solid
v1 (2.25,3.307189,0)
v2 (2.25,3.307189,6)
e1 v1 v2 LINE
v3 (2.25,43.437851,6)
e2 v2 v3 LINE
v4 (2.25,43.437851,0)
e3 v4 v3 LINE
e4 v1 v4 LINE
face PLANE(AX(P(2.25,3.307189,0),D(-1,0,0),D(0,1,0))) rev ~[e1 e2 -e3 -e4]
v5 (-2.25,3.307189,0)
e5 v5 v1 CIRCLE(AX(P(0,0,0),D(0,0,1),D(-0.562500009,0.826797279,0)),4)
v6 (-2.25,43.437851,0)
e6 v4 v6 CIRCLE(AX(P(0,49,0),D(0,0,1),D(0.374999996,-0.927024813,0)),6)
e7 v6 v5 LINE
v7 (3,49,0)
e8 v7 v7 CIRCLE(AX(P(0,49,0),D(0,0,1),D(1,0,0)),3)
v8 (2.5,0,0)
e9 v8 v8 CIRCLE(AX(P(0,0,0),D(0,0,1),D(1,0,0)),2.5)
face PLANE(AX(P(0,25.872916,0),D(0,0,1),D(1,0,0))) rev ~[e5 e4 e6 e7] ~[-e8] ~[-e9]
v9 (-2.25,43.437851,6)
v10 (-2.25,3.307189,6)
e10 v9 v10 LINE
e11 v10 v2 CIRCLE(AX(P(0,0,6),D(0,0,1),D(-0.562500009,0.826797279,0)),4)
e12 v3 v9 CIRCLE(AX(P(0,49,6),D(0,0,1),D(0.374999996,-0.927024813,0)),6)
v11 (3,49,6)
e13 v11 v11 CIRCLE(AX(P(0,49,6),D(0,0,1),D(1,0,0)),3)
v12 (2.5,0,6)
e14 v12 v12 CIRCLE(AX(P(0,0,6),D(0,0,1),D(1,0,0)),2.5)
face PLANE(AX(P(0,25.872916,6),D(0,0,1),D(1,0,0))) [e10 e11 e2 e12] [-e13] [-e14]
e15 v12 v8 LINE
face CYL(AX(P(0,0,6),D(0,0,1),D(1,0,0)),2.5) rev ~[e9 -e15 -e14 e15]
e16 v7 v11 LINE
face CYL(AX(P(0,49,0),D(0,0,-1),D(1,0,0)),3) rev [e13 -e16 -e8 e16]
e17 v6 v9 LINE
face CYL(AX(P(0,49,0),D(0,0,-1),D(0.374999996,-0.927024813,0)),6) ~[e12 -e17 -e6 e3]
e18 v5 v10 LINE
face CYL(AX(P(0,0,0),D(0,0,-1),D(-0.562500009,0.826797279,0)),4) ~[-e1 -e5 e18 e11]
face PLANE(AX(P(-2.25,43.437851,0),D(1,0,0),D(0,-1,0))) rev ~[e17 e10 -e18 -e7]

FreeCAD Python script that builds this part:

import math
import FreeCAD as App
import Part
import Sketcher

V = App.Vector
Q = App.Units.Quantity

doc = App.newDocument("Part")
body = doc.addObject("PartDesign::Body", "Body")

# Sketch on XY plane
sketch1 = body.newObject("Sketcher::SketchObject", "Sketch")
sketch1.AttachmentSupport = (doc.getObject("XY_Plane"), [""])
sketch1.MapMode = "FlatFace"
sketch1.addGeometry(Part.LineSegment(V(-2.2, 43.4, 0), V(-2.2, 3.3, 0)), False)
sketch1.addGeometry(Part.ArcOfCircle(Part.Circle(V(0, 0, 0), V(0, 0, 1), 4), math.radians(124), math.radians(416)), False)
sketch1.addGeometry(Part.LineSegment(V(2.2, 3.3, 0), V(2.2, 43.4, 0)), False)
sketch1.addGeometry(Part.ArcOfCircle(Part.Circle(V(0, 49, 0), V(0, 0, 1), 6), math.radians(-68), math.radians(248)), False)
sketch1.addGeometry(Part.Circle(V(0, 0, 0), V(0, 0, 1), 2), False)
sketch1.addGeometry(Part.Circle(V(0, 49, 0), V(0, 0, 1), 3), False)
sketch1.addConstraint(Sketcher.Constraint("Coincident", 0, 2, 1, 1))
sketch1.addConstraint(Sketcher.Constraint("Coincident", 1, 2, 2, 1))
sketch1.addConstraint(Sketcher.Constraint("Coincident", 2, 2, 3, 1))
sketch1.addConstraint(Sketcher.Constraint("Coincident", 3, 2, 0, 1))
sketch1.addConstraint(Sketcher.Constraint("Vertical", 0))
sketch1.addConstraint(Sketcher.Constraint("Vertical", 2))
sketch1.addConstraint(Sketcher.Constraint("Coincident", 1, 3, -1, 1))
sketch1.addConstraint(Sketcher.Constraint("Coincident", 4, 3, -1, 1))
sketch1.addConstraint(Sketcher.Constraint("Coincident", 5, 3, 3, 3))
sketch1.addConstraint(Sketcher.Constraint("Symmetric", 2, 2, 3, 2, -2))
sketch1.addConstraint(Sketcher.Constraint("Diameter", 4, Q("4 mm")))
sketch1.addConstraint(Sketcher.Constraint("Diameter", 5, Q("6 mm")))
sketch1.addConstraint(Sketcher.Constraint("Radius", 1, Q("4 mm")))
sketch1.addConstraint(Sketcher.Constraint("Radius", 3, Q("6 mm")))
sketch1.addConstraint(Sketcher.Constraint("DistanceY", -1, 1, 3, 3, Q("49 mm")))
sketch1.addConstraint(Sketcher.Constraint("DistanceX", 0, 2, 1, 2, Q("4.5 mm")))
pad1 = body.newObject("PartDesign::Pad", "Pad")
pad1.Profile = sketch1
pad1.Length = 6

# Sketch on XY plane
sketch2 = body.newObject("Sketcher::SketchObject", "Sketch001")
sketch2.AttachmentSupport = (doc.getObject("XY_Plane"), [""])
sketch2.MapMode = "FlatFace"
sketch2.AttachmentOffset = App.Placement(V(0, 0, 6), App.Rotation())
sketch2.addGeometry(Part.Circle(V(0, 0, 0), V(0, 0, 1), 2.5), False)
sketch2.addConstraint(Sketcher.Constraint("Coincident", 0, 3, -1, 1))
sketch2.addConstraint(Sketcher.Constraint("Diameter", 0, Q("5 mm")))
pocket1 = body.newObject("PartDesign::Pocket", "Pocket")
pocket1.Profile = sketch2
pocket1.Length = 8.1

doc.recompute()
